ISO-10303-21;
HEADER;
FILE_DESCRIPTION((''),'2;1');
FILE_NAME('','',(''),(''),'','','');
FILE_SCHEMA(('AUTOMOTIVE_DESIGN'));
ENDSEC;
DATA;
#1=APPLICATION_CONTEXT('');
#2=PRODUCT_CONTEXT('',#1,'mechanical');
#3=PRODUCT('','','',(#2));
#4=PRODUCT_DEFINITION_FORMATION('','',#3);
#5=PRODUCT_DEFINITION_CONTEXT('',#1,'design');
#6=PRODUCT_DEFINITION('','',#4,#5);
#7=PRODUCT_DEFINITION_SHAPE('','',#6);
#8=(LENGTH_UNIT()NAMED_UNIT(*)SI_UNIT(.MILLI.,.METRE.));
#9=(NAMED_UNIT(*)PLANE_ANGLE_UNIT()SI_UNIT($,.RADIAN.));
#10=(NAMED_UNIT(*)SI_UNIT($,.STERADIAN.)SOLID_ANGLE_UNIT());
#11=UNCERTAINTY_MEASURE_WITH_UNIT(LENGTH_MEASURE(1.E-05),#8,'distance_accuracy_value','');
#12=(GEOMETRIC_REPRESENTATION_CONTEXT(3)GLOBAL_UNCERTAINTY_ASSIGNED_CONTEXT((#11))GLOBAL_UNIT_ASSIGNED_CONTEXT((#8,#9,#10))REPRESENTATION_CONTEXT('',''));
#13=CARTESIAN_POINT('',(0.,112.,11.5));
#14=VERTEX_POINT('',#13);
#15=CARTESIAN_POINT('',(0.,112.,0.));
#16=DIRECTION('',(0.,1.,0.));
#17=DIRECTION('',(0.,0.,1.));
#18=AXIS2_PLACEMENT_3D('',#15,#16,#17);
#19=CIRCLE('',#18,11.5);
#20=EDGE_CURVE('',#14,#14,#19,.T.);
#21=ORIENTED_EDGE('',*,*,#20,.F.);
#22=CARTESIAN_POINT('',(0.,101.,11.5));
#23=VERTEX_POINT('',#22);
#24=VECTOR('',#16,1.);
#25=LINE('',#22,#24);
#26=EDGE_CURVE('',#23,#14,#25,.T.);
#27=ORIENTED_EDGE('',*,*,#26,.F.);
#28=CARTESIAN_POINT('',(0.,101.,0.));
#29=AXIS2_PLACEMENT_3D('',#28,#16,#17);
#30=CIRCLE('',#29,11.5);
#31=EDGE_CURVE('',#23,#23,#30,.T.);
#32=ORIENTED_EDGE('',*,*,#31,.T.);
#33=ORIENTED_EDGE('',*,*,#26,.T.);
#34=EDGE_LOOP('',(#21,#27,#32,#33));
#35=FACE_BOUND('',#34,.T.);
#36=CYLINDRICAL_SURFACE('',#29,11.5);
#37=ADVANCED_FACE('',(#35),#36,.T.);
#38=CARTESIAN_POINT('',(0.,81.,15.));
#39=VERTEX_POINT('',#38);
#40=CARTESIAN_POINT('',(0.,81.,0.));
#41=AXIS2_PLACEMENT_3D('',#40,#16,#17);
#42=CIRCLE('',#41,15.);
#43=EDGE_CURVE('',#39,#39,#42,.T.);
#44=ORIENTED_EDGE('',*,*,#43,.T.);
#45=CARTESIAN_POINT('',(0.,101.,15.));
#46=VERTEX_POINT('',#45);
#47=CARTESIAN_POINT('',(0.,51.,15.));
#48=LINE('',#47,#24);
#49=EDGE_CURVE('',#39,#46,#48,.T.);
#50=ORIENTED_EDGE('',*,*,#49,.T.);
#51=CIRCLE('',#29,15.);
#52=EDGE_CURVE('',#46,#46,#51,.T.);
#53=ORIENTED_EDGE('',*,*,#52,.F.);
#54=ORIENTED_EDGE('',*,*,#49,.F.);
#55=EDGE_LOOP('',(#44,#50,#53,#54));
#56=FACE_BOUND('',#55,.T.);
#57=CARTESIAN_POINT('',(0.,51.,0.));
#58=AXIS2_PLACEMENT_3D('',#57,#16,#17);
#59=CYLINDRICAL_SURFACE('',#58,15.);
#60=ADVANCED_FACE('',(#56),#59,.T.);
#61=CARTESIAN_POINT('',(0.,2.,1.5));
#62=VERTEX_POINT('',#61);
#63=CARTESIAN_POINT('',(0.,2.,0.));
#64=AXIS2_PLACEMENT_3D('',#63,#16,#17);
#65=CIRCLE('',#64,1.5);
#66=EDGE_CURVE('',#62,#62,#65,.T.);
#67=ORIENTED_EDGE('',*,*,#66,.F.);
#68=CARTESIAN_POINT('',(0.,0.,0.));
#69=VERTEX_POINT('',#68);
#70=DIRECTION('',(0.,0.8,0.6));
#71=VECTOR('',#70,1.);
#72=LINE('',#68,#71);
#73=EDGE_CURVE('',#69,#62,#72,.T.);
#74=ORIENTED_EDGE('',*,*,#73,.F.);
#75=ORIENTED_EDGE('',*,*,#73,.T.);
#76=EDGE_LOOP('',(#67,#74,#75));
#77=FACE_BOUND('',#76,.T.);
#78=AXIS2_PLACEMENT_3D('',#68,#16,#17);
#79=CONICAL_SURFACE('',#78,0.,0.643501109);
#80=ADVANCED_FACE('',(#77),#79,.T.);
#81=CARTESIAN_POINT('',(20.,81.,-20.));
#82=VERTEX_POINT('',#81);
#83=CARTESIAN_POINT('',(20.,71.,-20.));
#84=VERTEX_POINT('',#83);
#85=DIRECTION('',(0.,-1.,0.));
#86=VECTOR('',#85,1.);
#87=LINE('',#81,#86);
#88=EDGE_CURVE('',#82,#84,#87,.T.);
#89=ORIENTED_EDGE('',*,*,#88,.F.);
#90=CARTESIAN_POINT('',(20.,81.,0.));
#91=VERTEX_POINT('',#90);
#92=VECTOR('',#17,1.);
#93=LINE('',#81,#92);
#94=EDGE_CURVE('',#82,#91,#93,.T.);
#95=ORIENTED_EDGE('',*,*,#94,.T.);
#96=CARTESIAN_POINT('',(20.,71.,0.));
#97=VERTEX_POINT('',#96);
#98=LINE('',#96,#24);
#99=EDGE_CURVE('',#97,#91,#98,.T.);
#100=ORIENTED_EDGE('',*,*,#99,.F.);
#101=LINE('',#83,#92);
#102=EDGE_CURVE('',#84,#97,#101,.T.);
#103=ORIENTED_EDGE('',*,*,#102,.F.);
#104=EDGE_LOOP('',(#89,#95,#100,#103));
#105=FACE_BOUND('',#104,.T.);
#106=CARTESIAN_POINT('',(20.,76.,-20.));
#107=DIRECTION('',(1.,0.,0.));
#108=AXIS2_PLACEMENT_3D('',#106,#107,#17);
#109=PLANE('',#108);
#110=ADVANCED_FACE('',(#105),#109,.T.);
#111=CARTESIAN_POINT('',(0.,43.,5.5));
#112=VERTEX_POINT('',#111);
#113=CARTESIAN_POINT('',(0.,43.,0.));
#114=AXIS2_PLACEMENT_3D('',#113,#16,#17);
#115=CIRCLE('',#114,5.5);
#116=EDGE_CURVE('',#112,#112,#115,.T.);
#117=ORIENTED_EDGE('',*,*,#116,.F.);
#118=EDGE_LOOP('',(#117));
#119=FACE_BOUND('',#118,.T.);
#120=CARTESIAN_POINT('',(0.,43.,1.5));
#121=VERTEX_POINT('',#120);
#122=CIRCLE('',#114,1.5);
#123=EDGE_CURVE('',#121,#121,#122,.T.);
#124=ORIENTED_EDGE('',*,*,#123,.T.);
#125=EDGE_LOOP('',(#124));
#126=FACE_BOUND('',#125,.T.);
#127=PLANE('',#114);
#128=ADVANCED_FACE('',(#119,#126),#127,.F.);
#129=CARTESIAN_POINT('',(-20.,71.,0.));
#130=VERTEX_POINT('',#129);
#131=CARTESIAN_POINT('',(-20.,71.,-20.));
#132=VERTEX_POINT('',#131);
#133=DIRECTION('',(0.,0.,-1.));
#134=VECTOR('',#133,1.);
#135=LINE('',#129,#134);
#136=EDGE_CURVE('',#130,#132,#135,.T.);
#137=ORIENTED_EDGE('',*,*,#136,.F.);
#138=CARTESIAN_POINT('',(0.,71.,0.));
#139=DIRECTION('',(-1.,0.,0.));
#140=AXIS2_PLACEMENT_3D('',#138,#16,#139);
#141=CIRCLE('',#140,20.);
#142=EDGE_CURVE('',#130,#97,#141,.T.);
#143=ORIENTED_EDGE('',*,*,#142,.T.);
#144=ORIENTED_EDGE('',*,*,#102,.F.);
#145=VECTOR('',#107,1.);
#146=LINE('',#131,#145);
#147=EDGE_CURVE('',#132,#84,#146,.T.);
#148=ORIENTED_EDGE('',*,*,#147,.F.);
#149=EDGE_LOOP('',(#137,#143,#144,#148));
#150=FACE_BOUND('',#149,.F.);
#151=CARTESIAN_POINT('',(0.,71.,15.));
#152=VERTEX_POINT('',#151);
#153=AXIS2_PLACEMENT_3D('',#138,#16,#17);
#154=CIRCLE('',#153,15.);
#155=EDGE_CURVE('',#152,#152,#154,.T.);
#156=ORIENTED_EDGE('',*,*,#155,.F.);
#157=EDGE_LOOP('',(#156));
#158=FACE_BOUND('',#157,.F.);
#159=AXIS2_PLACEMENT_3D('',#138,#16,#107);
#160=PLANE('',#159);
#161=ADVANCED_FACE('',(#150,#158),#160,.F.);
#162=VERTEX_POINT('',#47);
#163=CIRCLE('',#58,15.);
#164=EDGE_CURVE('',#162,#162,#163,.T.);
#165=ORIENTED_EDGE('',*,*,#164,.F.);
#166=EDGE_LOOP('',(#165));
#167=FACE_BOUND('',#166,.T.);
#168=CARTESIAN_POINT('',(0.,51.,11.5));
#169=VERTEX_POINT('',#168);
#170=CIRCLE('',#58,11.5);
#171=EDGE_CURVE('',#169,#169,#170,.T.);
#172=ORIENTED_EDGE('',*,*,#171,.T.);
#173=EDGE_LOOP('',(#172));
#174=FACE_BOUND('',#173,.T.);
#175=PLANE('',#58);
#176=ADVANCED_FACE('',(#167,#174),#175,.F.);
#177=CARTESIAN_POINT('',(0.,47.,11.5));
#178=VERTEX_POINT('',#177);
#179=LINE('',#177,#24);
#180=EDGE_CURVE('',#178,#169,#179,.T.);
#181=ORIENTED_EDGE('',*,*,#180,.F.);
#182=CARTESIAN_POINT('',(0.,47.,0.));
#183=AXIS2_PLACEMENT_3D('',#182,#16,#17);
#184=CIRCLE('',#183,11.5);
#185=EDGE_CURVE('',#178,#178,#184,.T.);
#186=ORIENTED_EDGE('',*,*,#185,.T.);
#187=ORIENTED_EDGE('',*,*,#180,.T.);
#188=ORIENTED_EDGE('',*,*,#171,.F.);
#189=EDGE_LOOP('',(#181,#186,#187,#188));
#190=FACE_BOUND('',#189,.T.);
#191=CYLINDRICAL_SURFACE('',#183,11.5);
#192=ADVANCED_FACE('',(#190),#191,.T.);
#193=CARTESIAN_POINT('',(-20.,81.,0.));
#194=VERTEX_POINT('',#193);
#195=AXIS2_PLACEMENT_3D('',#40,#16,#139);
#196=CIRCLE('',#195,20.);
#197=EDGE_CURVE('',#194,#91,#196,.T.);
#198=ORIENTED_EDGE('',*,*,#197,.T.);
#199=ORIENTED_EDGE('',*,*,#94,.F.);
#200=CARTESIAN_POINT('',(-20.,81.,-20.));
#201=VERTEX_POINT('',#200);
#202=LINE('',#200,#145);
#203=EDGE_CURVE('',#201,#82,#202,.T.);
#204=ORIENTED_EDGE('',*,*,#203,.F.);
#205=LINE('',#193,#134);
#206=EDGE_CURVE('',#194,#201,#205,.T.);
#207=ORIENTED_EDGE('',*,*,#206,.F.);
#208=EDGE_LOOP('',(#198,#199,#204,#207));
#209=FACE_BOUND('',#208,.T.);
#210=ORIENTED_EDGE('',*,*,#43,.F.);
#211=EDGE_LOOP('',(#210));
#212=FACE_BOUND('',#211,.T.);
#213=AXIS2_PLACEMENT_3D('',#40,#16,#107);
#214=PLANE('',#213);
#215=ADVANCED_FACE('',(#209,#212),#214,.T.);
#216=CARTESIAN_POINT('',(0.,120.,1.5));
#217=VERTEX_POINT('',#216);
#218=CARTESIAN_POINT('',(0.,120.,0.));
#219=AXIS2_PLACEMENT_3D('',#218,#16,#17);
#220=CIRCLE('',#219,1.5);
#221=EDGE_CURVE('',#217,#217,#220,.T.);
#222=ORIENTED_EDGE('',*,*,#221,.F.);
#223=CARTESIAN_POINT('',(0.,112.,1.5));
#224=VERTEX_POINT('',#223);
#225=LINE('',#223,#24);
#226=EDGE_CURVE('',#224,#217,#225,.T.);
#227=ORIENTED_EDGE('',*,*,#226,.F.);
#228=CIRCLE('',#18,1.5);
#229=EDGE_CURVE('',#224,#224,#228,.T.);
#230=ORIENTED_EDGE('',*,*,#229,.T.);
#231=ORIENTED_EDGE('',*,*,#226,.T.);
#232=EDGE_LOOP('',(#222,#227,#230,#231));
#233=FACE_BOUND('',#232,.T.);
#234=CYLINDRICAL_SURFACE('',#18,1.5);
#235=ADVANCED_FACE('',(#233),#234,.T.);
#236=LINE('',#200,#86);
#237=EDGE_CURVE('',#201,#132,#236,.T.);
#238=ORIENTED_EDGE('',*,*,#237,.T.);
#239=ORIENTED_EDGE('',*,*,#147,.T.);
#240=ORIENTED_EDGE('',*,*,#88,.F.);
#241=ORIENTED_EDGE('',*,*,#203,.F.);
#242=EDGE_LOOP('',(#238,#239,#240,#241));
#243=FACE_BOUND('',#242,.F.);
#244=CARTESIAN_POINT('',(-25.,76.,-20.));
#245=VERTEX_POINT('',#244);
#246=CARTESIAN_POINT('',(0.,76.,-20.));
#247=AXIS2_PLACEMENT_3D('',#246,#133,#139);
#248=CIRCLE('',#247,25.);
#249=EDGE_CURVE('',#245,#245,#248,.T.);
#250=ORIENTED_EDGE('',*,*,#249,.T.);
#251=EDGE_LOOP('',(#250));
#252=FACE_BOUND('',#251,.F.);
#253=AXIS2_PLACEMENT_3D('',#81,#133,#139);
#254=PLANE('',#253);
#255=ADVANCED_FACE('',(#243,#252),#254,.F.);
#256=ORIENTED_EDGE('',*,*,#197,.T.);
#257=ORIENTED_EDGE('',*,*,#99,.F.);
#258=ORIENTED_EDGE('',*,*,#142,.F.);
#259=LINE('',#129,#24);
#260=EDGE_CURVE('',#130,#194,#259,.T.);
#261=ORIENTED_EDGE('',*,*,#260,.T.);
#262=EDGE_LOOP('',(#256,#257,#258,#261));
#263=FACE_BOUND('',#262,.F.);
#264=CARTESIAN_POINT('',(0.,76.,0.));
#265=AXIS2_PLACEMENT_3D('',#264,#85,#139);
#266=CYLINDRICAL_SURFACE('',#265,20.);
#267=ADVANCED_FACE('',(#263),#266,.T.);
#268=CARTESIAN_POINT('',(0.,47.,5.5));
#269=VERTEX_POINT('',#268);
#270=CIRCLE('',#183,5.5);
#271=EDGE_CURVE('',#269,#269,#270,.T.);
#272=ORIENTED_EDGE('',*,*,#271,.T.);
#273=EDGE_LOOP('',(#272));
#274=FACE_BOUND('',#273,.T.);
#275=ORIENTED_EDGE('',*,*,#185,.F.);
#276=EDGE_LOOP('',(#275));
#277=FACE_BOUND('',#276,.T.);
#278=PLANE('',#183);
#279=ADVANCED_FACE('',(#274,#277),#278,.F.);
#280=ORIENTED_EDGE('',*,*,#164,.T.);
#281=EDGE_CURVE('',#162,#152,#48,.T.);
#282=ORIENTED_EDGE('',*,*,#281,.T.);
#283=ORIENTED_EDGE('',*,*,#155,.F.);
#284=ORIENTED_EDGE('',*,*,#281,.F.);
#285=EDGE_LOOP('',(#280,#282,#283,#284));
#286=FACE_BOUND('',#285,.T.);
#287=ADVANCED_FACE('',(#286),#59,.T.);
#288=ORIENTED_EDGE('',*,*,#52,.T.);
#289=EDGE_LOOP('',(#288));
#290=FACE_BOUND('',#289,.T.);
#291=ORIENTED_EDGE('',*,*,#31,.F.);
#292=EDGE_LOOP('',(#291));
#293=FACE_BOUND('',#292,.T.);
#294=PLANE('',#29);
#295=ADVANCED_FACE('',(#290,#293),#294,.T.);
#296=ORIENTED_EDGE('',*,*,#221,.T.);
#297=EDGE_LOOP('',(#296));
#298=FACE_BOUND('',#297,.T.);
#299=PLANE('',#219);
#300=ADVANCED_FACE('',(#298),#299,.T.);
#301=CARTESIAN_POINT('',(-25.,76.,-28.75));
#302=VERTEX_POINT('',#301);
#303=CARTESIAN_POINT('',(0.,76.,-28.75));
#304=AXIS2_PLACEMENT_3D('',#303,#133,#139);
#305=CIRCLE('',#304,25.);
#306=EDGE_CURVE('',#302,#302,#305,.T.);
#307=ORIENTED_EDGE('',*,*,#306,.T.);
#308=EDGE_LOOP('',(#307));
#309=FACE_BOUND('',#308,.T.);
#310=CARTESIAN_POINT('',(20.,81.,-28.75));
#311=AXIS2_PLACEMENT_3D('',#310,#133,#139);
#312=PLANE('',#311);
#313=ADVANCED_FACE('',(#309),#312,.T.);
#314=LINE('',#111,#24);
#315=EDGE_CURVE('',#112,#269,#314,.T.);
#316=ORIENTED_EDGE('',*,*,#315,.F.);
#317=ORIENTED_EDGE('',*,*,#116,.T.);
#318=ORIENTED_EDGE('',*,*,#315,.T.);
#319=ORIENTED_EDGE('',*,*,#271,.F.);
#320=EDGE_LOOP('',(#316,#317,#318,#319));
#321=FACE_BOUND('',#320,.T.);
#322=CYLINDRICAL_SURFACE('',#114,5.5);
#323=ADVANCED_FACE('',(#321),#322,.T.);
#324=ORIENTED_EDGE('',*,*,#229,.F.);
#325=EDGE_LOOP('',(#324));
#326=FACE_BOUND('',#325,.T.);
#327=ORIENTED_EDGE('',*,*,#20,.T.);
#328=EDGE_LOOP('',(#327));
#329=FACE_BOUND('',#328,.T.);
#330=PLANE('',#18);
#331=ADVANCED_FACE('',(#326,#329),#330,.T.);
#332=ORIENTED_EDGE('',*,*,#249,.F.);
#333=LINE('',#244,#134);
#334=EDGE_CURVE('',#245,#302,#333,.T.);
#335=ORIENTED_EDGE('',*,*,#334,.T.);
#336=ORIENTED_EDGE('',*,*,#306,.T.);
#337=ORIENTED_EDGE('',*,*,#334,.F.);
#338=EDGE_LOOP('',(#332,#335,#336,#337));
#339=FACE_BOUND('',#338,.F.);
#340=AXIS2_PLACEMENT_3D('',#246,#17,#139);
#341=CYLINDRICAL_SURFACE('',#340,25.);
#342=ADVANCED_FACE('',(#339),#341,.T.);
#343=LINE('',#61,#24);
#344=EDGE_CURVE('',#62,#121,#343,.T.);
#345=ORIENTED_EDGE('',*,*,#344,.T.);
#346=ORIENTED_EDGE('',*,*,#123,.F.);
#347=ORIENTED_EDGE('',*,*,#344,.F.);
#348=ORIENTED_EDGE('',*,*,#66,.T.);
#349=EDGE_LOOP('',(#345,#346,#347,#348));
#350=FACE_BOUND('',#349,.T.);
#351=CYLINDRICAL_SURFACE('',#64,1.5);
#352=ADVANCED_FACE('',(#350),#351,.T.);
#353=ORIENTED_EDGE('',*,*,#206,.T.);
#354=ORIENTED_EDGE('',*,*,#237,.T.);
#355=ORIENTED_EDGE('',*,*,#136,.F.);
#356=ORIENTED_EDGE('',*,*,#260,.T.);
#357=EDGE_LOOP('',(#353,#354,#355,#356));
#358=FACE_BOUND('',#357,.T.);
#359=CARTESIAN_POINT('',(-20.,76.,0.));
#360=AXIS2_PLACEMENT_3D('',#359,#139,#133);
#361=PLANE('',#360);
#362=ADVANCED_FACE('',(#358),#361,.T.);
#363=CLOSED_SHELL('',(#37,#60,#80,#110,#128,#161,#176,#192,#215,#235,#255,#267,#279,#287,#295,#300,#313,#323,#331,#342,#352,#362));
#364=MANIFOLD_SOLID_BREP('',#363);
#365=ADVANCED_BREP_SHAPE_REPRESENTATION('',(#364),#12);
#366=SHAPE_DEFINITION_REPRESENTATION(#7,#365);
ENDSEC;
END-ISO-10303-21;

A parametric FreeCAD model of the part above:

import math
import FreeCAD as App
import Part
import Sketcher

V = App.Vector
Q = App.Units.Quantity


def add_polygon(sketch, points):
    """Adds a closed chain of lines whose ends are joined by coincident constraints."""
    first, n = sketch.GeometryCount, len(points)
    for a, b in zip(points, points[1:] + points[:1]):
        sketch.addGeometry(Part.LineSegment(App.Vector(*a, 0), App.Vector(*b, 0)), False)
    for i in range(n):
        sketch.addConstraint(Sketcher.Constraint("Coincident", first + i, 2, first + (i + 1) % n, 1))

doc = App.newDocument("Part")
body = doc.addObject("PartDesign::Body", "Body")

# Sketch on YZ plane
sketch1 = body.newObject("Sketcher::SketchObject", "Sketch")
sketch1.AttachmentSupport = (doc.getObject("YZ_Plane"), [""])
sketch1.MapMode = "FlatFace"
add_polygon(sketch1, [(2, 1.5), (0, 0), (120, 0), (120, 1.5), (112, 1.5), (112, 11.5), (101, 11.5), (101, 15), (51, 15), (51, 11.5), (47, 11.5), (47, 5.5), (43, 5.5), (43, 1.5)])  # lines 0-13
sketch1.addConstraint([
    Sketcher.Constraint("Horizontal", 1),
    Sketcher.Constraint("Vertical", 2),
    Sketcher.Constraint("Horizontal", 3),
    Sketcher.Constraint("Vertical", 4),
    Sketcher.Constraint("Horizontal", 5),
    Sketcher.Constraint("Vertical", 6),
    Sketcher.Constraint("Horizontal", 7),
    Sketcher.Constraint("Vertical", 8),
    Sketcher.Constraint("Horizontal", 9),
    Sketcher.Constraint("Vertical", 10),
    Sketcher.Constraint("Horizontal", 11),
    Sketcher.Constraint("Vertical", 12),
    Sketcher.Constraint("Horizontal", 13),
    Sketcher.Constraint("Coincident", 0, 2, -1, 1),
    Sketcher.Constraint("Horizontal", 5, 2, 8, 2),
    Sketcher.Constraint("Horizontal", 3, 2, 12, 2),
    Sketcher.Constraint("Equal", 9, 11),
    Sketcher.Constraint("Equal", 11, 12),
    Sketcher.Constraint("DistanceX", 1, 1, 1, 2, Q("120 mm")),
    Sketcher.Constraint("DistanceX", 3, 2, 3, 1, Q("8 mm")),
    Sketcher.Constraint("DistanceX", 7, 2, 7, 1, Q("50 mm")),
    Sketcher.Constraint("DistanceX", 9, 2, 9, 1, Q("4 mm")),
    Sketcher.Constraint("DistanceY", 4, 1, 4, 2, Q("10 mm")),
    Sketcher.Constraint("DistanceY", 2, 1, 2, 2, Q("1.5 mm")),
    Sketcher.Constraint("DistanceY", -1, 1, 6, 2, Q("15 mm")),
    Sketcher.Constraint("DistanceX", -1, 1, 13, 2, Q("2 mm")),
    Sketcher.Constraint("DistanceX", 5, 2, 5, 1, Q("11 mm")),
])
revolution = body.newObject("PartDesign::Revolution", "Revolution")
revolution.Profile = sketch1
revolution.ReferenceAxis = (sketch1, ["H_Axis"])
revolution.Angle = 360

# Sketch on XZ plane
sketch2 = body.newObject("Sketcher::SketchObject", "Sketch001")
sketch2.AttachmentSupport = (doc.getObject("XZ_Plane"), [""])
sketch2.MapMode = "FlatFace"
sketch2.AttachmentOffset = App.Placement(V(0, 0, -76), App.Rotation())
sketch2.addGeometry([
    Part.LineSegment(V(-20, -20, 0), V(-20, 0, 0)),
    Part.ArcOfCircle(Part.Circle(V(0, 0, 0), V(0, 0, 1), 20), math.radians(0), math.radians(180)),
    Part.LineSegment(V(20, 0, 0), V(20, -20, 0)),
    Part.LineSegment(V(20, -20, 0), V(-20, -20, 0)),
], False)
sketch2.addConstraint([
    Sketcher.Constraint("Tangent", 0, 2, 1, 2),
    Sketcher.Constraint("Tangent", 1, 1, 2, 1),
    Sketcher.Constraint("Coincident", 2, 2, 3, 1),
    Sketcher.Constraint("Coincident", 3, 2, 0, 1),
    Sketcher.Constraint("Vertical", 0),
    Sketcher.Constraint("Vertical", 2),
    Sketcher.Constraint("Horizontal", 3),
    Sketcher.Constraint("Coincident", 1, 3, -1, 1),
    Sketcher.Constraint("Radius", 1, Q("20 mm")),
    Sketcher.Constraint("DistanceY", 0, 1, 0, 2, Q("20 mm")),
])
pad1 = body.newObject("PartDesign::Pad", "Pad")
pad1.Profile = sketch2
pad1.Length = 10
pad1.Midplane = True

# Sketch on XY plane
sketch3 = body.newObject("Sketcher::SketchObject", "Sketch002")
sketch3.AttachmentSupport = (doc.getObject("XY_Plane"), [""])
sketch3.MapMode = "FlatFace"
sketch3.AttachmentOffset = App.Placement(V(0, 0, -20), App.Rotation())
sketch3.addGeometry(Part.Circle(V(0, 76, 0), V(0, 0, 1), 25), False)
sketch3.addConstraint([
    Sketcher.Constraint("PointOnObject", 0, 3, -2),
    Sketcher.Constraint("Diameter", 0, Q("50 mm")),
    Sketcher.Constraint("DistanceY", -1, 1, 0, 3, Q("76 mm")),
])
pad2 = body.newObject("PartDesign::Pad", "Pad001")
pad2.Profile = sketch3
pad2.Length = 8.75
pad2.Reversed = True

doc.recompute()
